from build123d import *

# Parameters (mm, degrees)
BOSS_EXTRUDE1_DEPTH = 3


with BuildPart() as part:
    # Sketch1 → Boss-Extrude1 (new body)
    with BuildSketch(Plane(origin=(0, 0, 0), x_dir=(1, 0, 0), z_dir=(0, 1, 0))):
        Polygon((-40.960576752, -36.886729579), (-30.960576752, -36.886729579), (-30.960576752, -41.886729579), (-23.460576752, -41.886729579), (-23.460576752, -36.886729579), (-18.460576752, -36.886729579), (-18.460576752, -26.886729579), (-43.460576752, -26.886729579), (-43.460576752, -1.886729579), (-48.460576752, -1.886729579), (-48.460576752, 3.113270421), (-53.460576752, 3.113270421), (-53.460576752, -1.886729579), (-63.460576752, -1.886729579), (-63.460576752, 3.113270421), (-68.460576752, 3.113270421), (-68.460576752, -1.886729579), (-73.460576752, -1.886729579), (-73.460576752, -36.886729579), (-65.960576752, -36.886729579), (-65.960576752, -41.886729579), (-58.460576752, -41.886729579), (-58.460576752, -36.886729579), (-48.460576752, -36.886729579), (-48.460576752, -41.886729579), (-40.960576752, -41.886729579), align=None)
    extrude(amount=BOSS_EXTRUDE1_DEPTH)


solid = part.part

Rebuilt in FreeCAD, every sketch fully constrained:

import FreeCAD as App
import Part
import Sketcher

V = App.Vector
Q = App.Units.Quantity


def add_polygon(sketch, points):
    """Adds a closed chain of lines whose ends are joined by coincident constraints."""
    first, n = sketch.GeometryCount, len(points)
    for a, b in zip(points, points[1:] + points[:1]):
        sketch.addGeometry(Part.LineSegment(App.Vector(*a, 0), App.Vector(*b, 0)), False)
    for i in range(n):
        sketch.addConstraint(Sketcher.Constraint("Coincident", first + i, 2, first + (i + 1) % n, 1))

doc = App.newDocument("Part")
body = doc.addObject("PartDesign::Body", "Body")

sketch1 = body.newObject("Sketcher::SketchObject", "Sketch")
sketch1.AttachmentSupport = (doc.getObject("XZ_Plane"), [""])
sketch1.MapMode = "FlatFace"
add_polygon(sketch1, [(-40.960577, 36.88673), (-30.960577, 36.88673), (-30.960577, 41.88673), (-23.460577, 41.88673), (-23.460577, 36.88673), (-18.460577, 36.88673), (-18.460577, 26.88673), (-43.460577, 26.88673), (-43.460577, 1.88673), (-48.460577, 1.88673), (-48.460577, -3.11327), (-53.460577, -3.11327), (-53.460577, 1.88673), (-63.460577, 1.88673), (-63.460577, -3.11327), (-68.460577, -3.11327), (-68.460577, 1.88673), (-73.460577, 1.88673), (-73.460577, 36.88673), (-65.960577, 36.88673), (-65.960577, 41.88673), (-58.460577, 41.88673), (-58.460577, 36.88673), (-48.460577, 36.88673), (-48.460577, 41.88673), (-40.960577, 41.88673)])
sketch1.addConstraint([
    Sketcher.Constraint("Horizontal", 0),
    Sketcher.Constraint("Vertical", 1),
    Sketcher.Constraint("Horizontal", 2),
    Sketcher.Constraint("Vertical", 3),
    Sketcher.Constraint("Horizontal", 4),
    Sketcher.Constraint("Vertical", 5),
    Sketcher.Constraint("Horizontal", 6),
    Sketcher.Constraint("Vertical", 7),
    Sketcher.Constraint("Horizontal", 8),
    Sketcher.Constraint("Vertical", 9),
    Sketcher.Constraint("Horizontal", 10),
    Sketcher.Constraint("Vertical", 11),
    Sketcher.Constraint("Horizontal", 12),
    Sketcher.Constraint("Vertical", 13),
    Sketcher.Constraint("Horizontal", 14),
    Sketcher.Constraint("Vertical", 15),
    Sketcher.Constraint("Horizontal", 16),
    Sketcher.Constraint("Vertical", 17),
    Sketcher.Constraint("Horizontal", 18),
    Sketcher.Constraint("Vertical", 19),
    Sketcher.Constraint("Horizontal", 20),
    Sketcher.Constraint("Vertical", 21),
    Sketcher.Constraint("Horizontal", 22),
    Sketcher.Constraint("Vertical", 23),
    Sketcher.Constraint("Horizontal", 24),
    Sketcher.Constraint("Vertical", 25),
    Sketcher.Constraint("Horizontal", 0, 2, 3, 2),
    Sketcher.Constraint("Horizontal", 8, 2, 11, 2),
    Sketcher.Constraint("Horizontal", 10, 2, 13, 2),
    Sketcher.Constraint("Horizontal", 12, 2, 15, 2),
    Sketcher.Constraint("Horizontal", 4, 2, 17, 2),
    Sketcher.Constraint("Horizontal", 2, 2, 19, 2),
    Sketcher.Constraint("Horizontal", 18, 2, 21, 2),
    Sketcher.Constraint("Horizontal", 20, 2, 23, 2),
    Sketcher.Constraint("Vertical", 9, 2, 22, 2),
    Sketcher.Constraint("Equal", 4, 8),
    Sketcher.Constraint("Equal", 8, 10),
    Sketcher.Constraint("Equal", 0, 12),
    Sketcher.Constraint("Equal", 10, 14),
    Sketcher.Constraint("Equal", 14, 16),
    Sketcher.Constraint("Equal", 2, 18),
    Sketcher.Constraint("Equal", 18, 20),
    Sketcher.Constraint("Equal", 12, 22),
    Sketcher.Constraint("Equal", 20, 24),
    Sketcher.Constraint("Equal", 16, 1),
    Sketcher.Constraint("Equal", 22, 5),
    Sketcher.Constraint("Equal", 6, 7),
    Sketcher.Constraint("Equal", 3, 9),
    Sketcher.Constraint("DistanceX", 0, 1, 0, 2, Q("10 mm")),
    Sketcher.Constraint("DistanceX", 4, 1, 4, 2, Q("5 mm")),
    Sketcher.Constraint("DistanceY", -1, 1, 0, 2, Q("36.88673 mm")),
    Sketcher.Constraint("DistanceX", 0, 2, -1, 1, Q("30.960577 mm")),
])
pad1 = body.newObject("PartDesign::Pad", "Pad")
pad1.Profile = sketch1
pad1.Length = 3
pad1.Reversed = True

doc.recompute()
